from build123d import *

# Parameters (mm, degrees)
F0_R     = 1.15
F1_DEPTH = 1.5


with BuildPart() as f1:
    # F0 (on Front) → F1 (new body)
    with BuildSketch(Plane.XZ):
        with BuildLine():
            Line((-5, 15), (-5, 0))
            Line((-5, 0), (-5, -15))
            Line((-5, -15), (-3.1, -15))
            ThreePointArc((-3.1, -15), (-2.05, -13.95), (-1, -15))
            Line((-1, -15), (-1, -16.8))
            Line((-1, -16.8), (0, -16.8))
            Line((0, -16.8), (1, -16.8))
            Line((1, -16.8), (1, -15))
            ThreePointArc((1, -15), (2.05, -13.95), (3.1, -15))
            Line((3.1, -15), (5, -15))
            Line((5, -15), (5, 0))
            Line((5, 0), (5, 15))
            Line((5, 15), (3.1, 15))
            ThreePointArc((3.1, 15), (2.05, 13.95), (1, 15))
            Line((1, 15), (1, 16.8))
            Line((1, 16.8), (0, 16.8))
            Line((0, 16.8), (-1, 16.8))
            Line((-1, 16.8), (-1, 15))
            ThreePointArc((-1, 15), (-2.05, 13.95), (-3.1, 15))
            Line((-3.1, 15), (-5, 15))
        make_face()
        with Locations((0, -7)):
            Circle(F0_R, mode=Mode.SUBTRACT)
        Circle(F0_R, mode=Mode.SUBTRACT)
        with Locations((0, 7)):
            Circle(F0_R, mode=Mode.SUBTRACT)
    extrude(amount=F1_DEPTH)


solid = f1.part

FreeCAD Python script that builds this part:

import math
import FreeCAD as App
import Part
import Sketcher

V = App.Vector
Q = App.Units.Quantity

doc = App.newDocument("Part")
body = doc.addObject("PartDesign::Body", "Body")

# Sketch on XZ plane
sketch1 = body.newObject("Sketcher::SketchObject", "Sketch")
sketch1.AttachmentSupport = (doc.getObject("XZ_Plane"), [""])
sketch1.MapMode = "FlatFace"
sketch1.addGeometry([
    Part.LineSegment(V(-5, 15, 0), V(-5, -15, 0)),  # 0
    Part.LineSegment(V(-5, -15, 0), V(-3.1, -15, 0)),  # 1
    Part.ArcOfCircle(Part.Circle(V(-2, -15, 0), V(0, 0, 1), 1.1), math.radians(0), math.radians(180)),  # 2
    Part.LineSegment(V(-1, -15, 0), V(-1, -16.8, 0)),  # 3
    Part.LineSegment(V(-1, -16.8, 0), V(1, -16.8, 0)),  # 4
    Part.LineSegment(V(1, -16.8, 0), V(1, -15, 0)),  # 5
    Part.ArcOfCircle(Part.Circle(V(2, -15, 0), V(0, 0, 1), 1.1), math.radians(0), math.radians(180)),  # 6
    Part.LineSegment(V(3.1, -15, 0), V(5, -15, 0)),  # 7
    Part.LineSegment(V(5, -15, 0), V(5, 15, 0)),  # 8
    Part.LineSegment(V(5, 15, 0), V(3.1, 15, 0)),  # 9
    Part.ArcOfCircle(Part.Circle(V(2, 15, 0), V(0, 0, 1), 1.1), math.radians(180), math.radians(360)),  # 10
    Part.LineSegment(V(1, 15, 0), V(1, 16.8, 0)),  # 11
    Part.LineSegment(V(1, 16.8, 0), V(-1, 16.8, 0)),  # 12
    Part.LineSegment(V(-1, 16.8, 0), V(-1, 15, 0)),  # 13
    Part.ArcOfCircle(Part.Circle(V(-2, 15, 0), V(0, 0, 1), 1.1), math.radians(180), math.radians(360)),  # 14
    Part.LineSegment(V(-3.1, 15, 0), V(-5, 15, 0)),  # 15
    Part.Circle(V(0, -7, 0), V(0, 0, 1), 1.1),  # 16
    Part.Circle(V(0, 0, 0), V(0, 0, 1), 1.1),  # 17
    Part.Circle(V(0, 7, 0), V(0, 0, 1), 1.1),  # 18
], False)
sketch1.addConstraint([
    Sketcher.Constraint("Coincident", 0, 2, 1, 1),
    Sketcher.Constraint("Coincident", 1, 2, 2, 2),
    Sketcher.Constraint("Tangent", 2, 1, 3, 1),
    Sketcher.Constraint("Coincident", 3, 2, 4, 1),
    Sketcher.Constraint("Coincident", 4, 2, 5, 1),
    Sketcher.Constraint("Tangent", 5, 2, 6, 2),
    Sketcher.Constraint("Coincident", 6, 1, 7, 1),
    Sketcher.Constraint("Coincident", 7, 2, 8, 1),
    Sketcher.Constraint("Coincident", 8, 2, 9, 1),
    Sketcher.Constraint("Coincident", 9, 2, 10, 2),
    Sketcher.Constraint("Tangent", 10, 1, 11, 1),
    Sketcher.Constraint("Coincident", 11, 2, 12, 1),
    Sketcher.Constraint("Coincident", 12, 2, 13, 1),
    Sketcher.Constraint("Tangent", 13, 2, 14, 2),
    Sketcher.Constraint("Coincident", 14, 1, 15, 1),
    Sketcher.Constraint("Coincident", 15, 2, 0, 1),
    Sketcher.Constraint("Vertical", 0),
    Sketcher.Constraint("Horizontal", 1),
    Sketcher.Constraint("Vertical", 3),
    Sketcher.Constraint("Horizontal", 4),
    Sketcher.Constraint("Vertical", 5),
    Sketcher.Constraint("Horizontal", 7),
    Sketcher.Constraint("Vertical", 8),
    Sketcher.Constraint("Horizontal", 9),
    Sketcher.Constraint("Vertical", 11),
    Sketcher.Constraint("Horizontal", 12),
    Sketcher.Constraint("Vertical", 13),
    Sketcher.Constraint("Horizontal", 15),
    Sketcher.Constraint("Coincident", 17, 3, -1, 1),
    Sketcher.Constraint("Equal", 2, 6),
    Sketcher.Constraint("Equal", 6, 10),
    Sketcher.Constraint("Equal", 10, 14),
    Sketcher.Constraint("Equal", 16, 17),
    Sketcher.Constraint("Equal", 17, 18),
    Sketcher.Constraint("Symmetric", 2, 3, 10, 3, -1, 1),
    Sketcher.Constraint("Symmetric", 6, 3, 14, 3, -1, 1),
    Sketcher.Constraint("Symmetric", 16, 3, 18, 3, -1, 1),
    Sketcher.Constraint("Symmetric", 0, 2, 8, 2, -1, 1),
    Sketcher.Constraint("Symmetric", 2, 3, 6, 3, -2),
    Sketcher.Constraint("PointOnObject", 16, 3, -2),
    Sketcher.Constraint("Horizontal", 6, 3, 0, 2),
    Sketcher.Constraint("Horizontal", 5, 2, 6, 1),
    Sketcher.Constraint("Horizontal", 13, 2, 14, 1),
    Sketcher.Constraint("Equal", 5, 11),
    Sketcher.Constraint("Diameter", 16, Q("2.3 mm")),
    Sketcher.Constraint("DistanceX", 4, 1, 4, 2, Q("2 mm")),
    Sketcher.Constraint("DistanceY", 0, 2, 0, 1, Q("30 mm")),
    Sketcher.Constraint("Radius", 2, Q("1.05 mm")),
    Sketcher.Constraint("DistanceX", 1, 1, 1, 2, Q("1.9 mm")),
    Sketcher.Constraint("DistanceY", 3, 2, 3, 1, Q("1.8 mm")),
    Sketcher.Constraint("DistanceY", 16, 3, -1, 1, Q("7 mm")),
])
pad1 = body.newObject("PartDesign::Pad", "Pad")
pad1.Profile = sketch1
pad1.Length = 1.5

doc.recompute()
